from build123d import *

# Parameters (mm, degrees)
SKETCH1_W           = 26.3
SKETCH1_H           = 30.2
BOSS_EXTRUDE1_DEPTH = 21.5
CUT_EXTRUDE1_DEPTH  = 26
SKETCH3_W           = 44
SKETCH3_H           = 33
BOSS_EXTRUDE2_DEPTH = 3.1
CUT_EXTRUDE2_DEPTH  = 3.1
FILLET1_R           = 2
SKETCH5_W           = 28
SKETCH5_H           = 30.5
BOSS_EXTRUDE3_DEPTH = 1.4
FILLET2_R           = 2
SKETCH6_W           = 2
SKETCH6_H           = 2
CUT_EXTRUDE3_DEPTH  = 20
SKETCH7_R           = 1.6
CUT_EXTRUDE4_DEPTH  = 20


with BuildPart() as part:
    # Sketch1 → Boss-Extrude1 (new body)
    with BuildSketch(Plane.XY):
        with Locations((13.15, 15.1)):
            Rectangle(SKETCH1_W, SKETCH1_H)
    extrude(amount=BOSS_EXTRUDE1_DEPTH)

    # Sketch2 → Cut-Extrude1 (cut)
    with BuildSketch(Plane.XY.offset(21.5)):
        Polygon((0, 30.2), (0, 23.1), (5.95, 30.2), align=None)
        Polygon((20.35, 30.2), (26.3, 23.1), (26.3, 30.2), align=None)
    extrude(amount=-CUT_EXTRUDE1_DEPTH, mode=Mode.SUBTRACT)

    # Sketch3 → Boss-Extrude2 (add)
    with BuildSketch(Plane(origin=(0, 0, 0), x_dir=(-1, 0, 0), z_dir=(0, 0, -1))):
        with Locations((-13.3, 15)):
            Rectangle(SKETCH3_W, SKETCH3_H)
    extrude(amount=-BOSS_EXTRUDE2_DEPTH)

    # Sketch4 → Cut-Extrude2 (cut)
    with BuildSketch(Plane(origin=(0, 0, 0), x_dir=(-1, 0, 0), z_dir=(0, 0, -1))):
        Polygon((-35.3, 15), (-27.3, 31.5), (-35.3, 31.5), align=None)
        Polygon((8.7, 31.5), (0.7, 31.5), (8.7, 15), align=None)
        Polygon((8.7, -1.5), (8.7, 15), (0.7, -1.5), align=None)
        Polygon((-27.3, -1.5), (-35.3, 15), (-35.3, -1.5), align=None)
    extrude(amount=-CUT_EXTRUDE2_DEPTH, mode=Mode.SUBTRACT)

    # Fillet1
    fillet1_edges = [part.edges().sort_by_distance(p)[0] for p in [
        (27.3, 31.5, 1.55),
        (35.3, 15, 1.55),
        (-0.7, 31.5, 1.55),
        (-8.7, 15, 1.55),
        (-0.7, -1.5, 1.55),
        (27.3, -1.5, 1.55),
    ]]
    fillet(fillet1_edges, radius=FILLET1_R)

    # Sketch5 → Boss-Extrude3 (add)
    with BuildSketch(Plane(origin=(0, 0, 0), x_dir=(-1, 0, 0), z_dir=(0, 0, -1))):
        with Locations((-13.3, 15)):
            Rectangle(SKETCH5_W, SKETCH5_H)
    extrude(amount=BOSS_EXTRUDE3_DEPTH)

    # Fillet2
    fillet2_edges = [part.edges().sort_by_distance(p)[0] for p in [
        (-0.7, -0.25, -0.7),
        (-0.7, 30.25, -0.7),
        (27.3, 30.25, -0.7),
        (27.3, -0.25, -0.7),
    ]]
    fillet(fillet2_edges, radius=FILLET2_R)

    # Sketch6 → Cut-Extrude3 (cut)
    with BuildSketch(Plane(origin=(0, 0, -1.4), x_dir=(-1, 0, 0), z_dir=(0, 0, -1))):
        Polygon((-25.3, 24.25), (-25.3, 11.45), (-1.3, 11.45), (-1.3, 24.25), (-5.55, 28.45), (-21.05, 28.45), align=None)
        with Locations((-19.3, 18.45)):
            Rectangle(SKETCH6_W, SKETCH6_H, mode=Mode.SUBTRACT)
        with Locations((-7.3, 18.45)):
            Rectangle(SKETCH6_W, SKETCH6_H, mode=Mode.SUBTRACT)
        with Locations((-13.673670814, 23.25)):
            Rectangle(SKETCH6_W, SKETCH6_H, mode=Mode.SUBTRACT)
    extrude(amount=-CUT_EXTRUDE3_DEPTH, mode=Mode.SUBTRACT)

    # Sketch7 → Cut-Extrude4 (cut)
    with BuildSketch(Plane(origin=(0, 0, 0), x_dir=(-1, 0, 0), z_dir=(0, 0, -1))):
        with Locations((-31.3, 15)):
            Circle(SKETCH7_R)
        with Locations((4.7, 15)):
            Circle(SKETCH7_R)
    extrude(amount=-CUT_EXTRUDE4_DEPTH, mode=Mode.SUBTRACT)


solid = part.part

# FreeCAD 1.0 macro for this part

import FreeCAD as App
import Part
import Sketcher

V = App.Vector
Q = App.Units.Quantity


def edges_at(feature, points):
    """Names of the edges that pass closest to the given points."""
    edges = feature.Shape.Edges
    near = lambda p: min(range(len(edges)), key=lambda i: edges[i].distToShape(Part.Vertex(*p))[0])
    return sorted({f"Edge{near(p) + 1}" for p in points})

doc = App.newDocument("Part")
body = doc.addObject("PartDesign::Body", "Body")

sketch1 = body.newObject("Sketcher::SketchObject", "Sketch")
sketch1.AttachmentSupport = (doc.getObject("XY_Plane"), [""])
sketch1.MapMode = "FlatFace"
sketch1.addGeometry([
    Part.LineSegment(V(0, 30, 0), V(0, 0, 0)),
    Part.LineSegment(V(0, 0, 0), V(26, 0, 0)),
    Part.LineSegment(V(26, 0, 0), V(26, 30, 0)),
    Part.LineSegment(V(26, 30, 0), V(0, 30, 0)),
], False)
sketch1.addConstraint([
    Sketcher.Constraint("Coincident", 0, 2, 1, 1),
    Sketcher.Constraint("Coincident", 1, 2, 2, 1),
    Sketcher.Constraint("Coincident", 2, 2, 3, 1),
    Sketcher.Constraint("Coincident", 3, 2, 0, 1),
    Sketcher.Constraint("Vertical", 0),
    Sketcher.Constraint("Horizontal", 1),
    Sketcher.Constraint("Vertical", 2),
    Sketcher.Constraint("Horizontal", 3),
    Sketcher.Constraint("Coincident", 0, 2, -1, 1),
    Sketcher.Constraint("DistanceX", 1, 1, 1, 2, Q("26.3 mm")),
    Sketcher.Constraint("DistanceY", 0, 2, 0, 1, Q("30.2 mm")),
])
pad1 = body.newObject("PartDesign::Pad", "Pad")
pad1.Profile = sketch1
pad1.Length = 21.5

sketch2 = body.newObject("Sketcher::SketchObject", "Sketch001")
sketch2.AttachmentSupport = (doc.getObject("XY_Plane"), [""])
sketch2.MapMode = "FlatFace"
sketch2.AttachmentOffset = App.Placement(V(0, 0, 21.5), App.Rotation())
sketch2.addGeometry([
    Part.LineSegment(V(0, 30, 0), V(0, 23, 0)),
    Part.LineSegment(V(0, 23, 0), V(6, 30, 0)),
    Part.LineSegment(V(6, 30, 0), V(0, 30, 0)),
    Part.LineSegment(V(20, 30, 0), V(26, 23, 0)),
    Part.LineSegment(V(26, 23, 0), V(26, 30, 0)),
    Part.LineSegment(V(26, 30, 0), V(20, 30, 0)),
], False)
sketch2.addConstraint([
    Sketcher.Constraint("Coincident", 0, 2, 1, 1),
    Sketcher.Constraint("Coincident", 1, 2, 2, 1),
    Sketcher.Constraint("Coincident", 2, 2, 0, 1),
    Sketcher.Constraint("Coincident", 3, 2, 4, 1),
    Sketcher.Constraint("Coincident", 4, 2, 5, 1),
    Sketcher.Constraint("Coincident", 5, 2, 3, 1),
    Sketcher.Constraint("Vertical", 0),
    Sketcher.Constraint("Horizontal", 2),
    Sketcher.Constraint("Vertical", 4),
    Sketcher.Constraint("Horizontal", 5),
    Sketcher.Constraint("PointOnObject", 0, 2, -2),
    Sketcher.Constraint("Horizontal", 0, 2, 3, 2),
    Sketcher.Constraint("Horizontal", 2, 2, 4, 2),
    Sketcher.Constraint("Equal", 2, 5),
    Sketcher.Constraint("DistanceY", 0, 2, 0, 1, Q("7.1 mm")),
    Sketcher.Constraint("DistanceX", 2, 2, 2, 1, Q("5.95 mm")),
    Sketcher.Constraint("DistanceY", -1, 1, 0, 2, Q("23.1 mm")),
    Sketcher.Constraint("DistanceX", -1, 1, 3, 2, Q("26.3 mm")),
])
pocket1 = body.newObject("PartDesign::Pocket", "Pocket")
pocket1.Profile = sketch2
pocket1.Length = 26

sketch3 = body.newObject("Sketcher::SketchObject", "Sketch002")
sketch3.AttachmentSupport = (doc.getObject("XY_Plane"), [""])
sketch3.MapMode = "FlatFace"
sketch3.addGeometry([
    Part.LineSegment(V(35, 32, 0), V(35, -2, 0)),
    Part.LineSegment(V(35, -2, 0), V(-9, -2, 0)),
    Part.LineSegment(V(-9, -2, 0), V(-9, 32, 0)),
    Part.LineSegment(V(-9, 32, 0), V(35, 32, 0)),
], False)
sketch3.addConstraint([
    Sketcher.Constraint("Coincident", 0, 2, 1, 1),
    Sketcher.Constraint("Coincident", 1, 2, 2, 1),
    Sketcher.Constraint("Coincident", 2, 2, 3, 1),
    Sketcher.Constraint("Coincident", 3, 2, 0, 1),
    Sketcher.Constraint("Vertical", 0),
    Sketcher.Constraint("Horizontal", 1),
    Sketcher.Constraint("Vertical", 2),
    Sketcher.Constraint("Horizontal", 3),
    Sketcher.Constraint("DistanceX", 1, 2, 1, 1, Q("44 mm")),
    Sketcher.Constraint("DistanceY", 0, 2, 0, 1, Q("33 mm")),
    Sketcher.Constraint("DistanceX", -1, 1, 0, 2, Q("35.3 mm")),
    Sketcher.Constraint("DistanceY", 0, 2, -1, 1, Q("1.5 mm")),
])
pad2 = body.newObject("PartDesign::Pad", "Pad001")
pad2.Profile = sketch3
pad2.Length = 3.1

sketch4 = body.newObject("Sketcher::SketchObject", "Sketch003")
sketch4.AttachmentSupport = (doc.getObject("XY_Plane"), [""])
sketch4.MapMode = "FlatFace"
sketch4.addGeometry([
    Part.LineSegment(V(35, 15, 0), V(27, 32, 0)),
    Part.LineSegment(V(27, 32, 0), V(35, 32, 0)),
    Part.LineSegment(V(35, 32, 0), V(35, 15, 0)),
    Part.LineSegment(V(-9, 32, 0), V(-1, 32, 0)),
    Part.LineSegment(V(-1, 32, 0), V(-9, 15, 0)),
    Part.LineSegment(V(-9, 15, 0), V(-9, 32, 0)),
    Part.LineSegment(V(-9, -2, 0), V(-9, 15, 0)),
    Part.LineSegment(V(-9, 15, 0), V(-1, -2, 0)),
    Part.LineSegment(V(-1, -2, 0), V(-9, -2, 0)),
    Part.LineSegment(V(27, -2, 0), V(35, 15, 0)),
    Part.LineSegment(V(35, 15, 0), V(35, -2, 0)),
    Part.LineSegment(V(35, -2, 0), V(27, -2, 0)),
], False)
sketch4.addConstraint([
    Sketcher.Constraint("Coincident", 0, 2, 1, 1),
    Sketcher.Constraint("Coincident", 1, 2, 2, 1),
    Sketcher.Constraint("Coincident", 2, 2, 0, 1),
    Sketcher.Constraint("Coincident", 3, 2, 4, 1),
    Sketcher.Constraint("Coincident", 4, 2, 5, 1),
    Sketcher.Constraint("Coincident", 5, 2, 3, 1),
    Sketcher.Constraint("Coincident", 6, 2, 7, 1),
    Sketcher.Constraint("Coincident", 7, 2, 8, 1),
    Sketcher.Constraint("Coincident", 8, 2, 6, 1),
    Sketcher.Constraint("Coincident", 9, 2, 10, 1),
    Sketcher.Constraint("Coincident", 10, 2, 11, 1),
    Sketcher.Constraint("Coincident", 11, 2, 9, 1),
    Sketcher.Constraint("Horizontal", 1),
    Sketcher.Constraint("Vertical", 2),
    Sketcher.Constraint("Horizontal", 3),
    Sketcher.Constraint("Vertical", 5),
    Sketcher.Constraint("Vertical", 6),
    Sketcher.Constraint("Horizontal", 8),
    Sketcher.Constraint("Vertical", 10),
    Sketcher.Constraint("Horizontal", 11),
    Sketcher.Constraint("Coincident", 6, 2, 4, 2),
    Sketcher.Constraint("Coincident", 9, 2, 2, 2),
    Sketcher.Constraint("Parallel", 0, 7),
    Sketcher.Constraint("Parallel", 4, 9),
    Sketcher.Constraint("Horizontal", 1, 2, 3, 2),
    Sketcher.Constraint("Horizontal", 2, 2, 4, 2),
    Sketcher.Constraint("Horizontal", 8, 2, 10, 2),
    Sketcher.Constraint("Vertical", 3, 2, 7, 2),
    Sketcher.Constraint("Vertical", 0, 2, 11, 2),
    Sketcher.Constraint("DistanceX", 1, 1, 1, 2, Q("8 mm")),
    Sketcher.Constraint("DistanceY", 2, 2, 2, 1, Q("16.5 mm")),
    Sketcher.Constraint("DistanceY", -1, 1, 2, 2, Q("15 mm")),
    Sketcher.Constraint("DistanceX", 3, 2, 0, 2, Q("28 mm")),
    Sketcher.Constraint("DistanceX", -1, 1, 0, 2, Q("27.3 mm")),
])
pocket2 = body.newObject("PartDesign::Pocket", "Pocket001")
pocket2.Profile = sketch4
pocket2.Length = 3.1
pocket2.Reversed = True
doc.recompute()

fillet = body.newObject("PartDesign::Fillet", "Fillet")
fillet.Base = (pocket2, edges_at(pocket2, [
    (27.3, 31.5, 1.55),
    (35.3, 15, 1.55),
    (-0.7, 31.5, 1.55),
    (-8.7, 15, 1.55),
    (-0.7, -1.5, 1.55),
    (27.3, -1.5, 1.55),
]))
fillet.Radius = 2

sketch5 = body.newObject("Sketcher::SketchObject", "Sketch004")
sketch5.AttachmentSupport = (doc.getObject("XY_Plane"), [""])
sketch5.MapMode = "FlatFace"
sketch5.addGeometry([
    Part.LineSegment(V(27, 30, 0), V(27, 0, 0)),
    Part.LineSegment(V(27, 0, 0), V(-1, 0, 0)),
    Part.LineSegment(V(-1, 0, 0), V(-1, 30, 0)),
    Part.LineSegment(V(-1, 30, 0), V(27, 30, 0)),
], False)
sketch5.addConstraint([
    Sketcher.Constraint("Coincident", 0, 2, 1, 1),
    Sketcher.Constraint("Coincident", 1, 2, 2, 1),
    Sketcher.Constraint("Coincident", 2, 2, 3, 1),
    Sketcher.Constraint("Coincident", 3, 2, 0, 1),
    Sketcher.Constraint("Vertical", 0),
    Sketcher.Constraint("Horizontal", 1),
    Sketcher.Constraint("Vertical", 2),
    Sketcher.Constraint("Horizontal", 3),
    Sketcher.Constraint("DistanceX", 1, 2, 1, 1, Q("28 mm")),
    Sketcher.Constraint("DistanceY", 0, 2, 0, 1, Q("30.5 mm")),
    Sketcher.Constraint("DistanceX", -1, 1, 0, 2, Q("27.3 mm")),
    Sketcher.Constraint("DistanceY", 0, 2, -1, 1, Q("0.25 mm")),
])
pad3 = body.newObject("PartDesign::Pad", "Pad002")
pad3.Profile = sketch5
pad3.Length = 1.4
pad3.Reversed = True
doc.recompute()

fillet2 = body.newObject("PartDesign::Fillet", "Fillet001")
fillet2.Base = (pad3, edges_at(pad3, [
    (-0.7, -0.25, -0.7),
    (-0.7, 30.25, -0.7),
    (27.3, 30.25, -0.7),
    (27.3, -0.25, -0.7),
]))
fillet2.Radius = 2

sketch6 = body.newObject("Sketcher::SketchObject", "Sketch005")
sketch6.AttachmentSupport = (doc.getObject("XY_Plane"), [""])
sketch6.MapMode = "FlatFace"
sketch6.AttachmentOffset = App.Placement(V(0, 0, -1.4), App.Rotation())
sketch6.addGeometry([
    Part.LineSegment(V(25.3, 24.2, 0), V(25.3, 11.4, 0)),
    Part.LineSegment(V(25.3, 11.4, 0), V(1.3, 11.4, 0)),
    Part.LineSegment(V(1.3, 11.4, 0), V(1.3, 24.2, 0)),
    Part.LineSegment(V(1.3, 24.2, 0), V(5.5, 28.4, 0)),
    Part.LineSegment(V(5.5, 28.4, 0), V(21.1, 28.4, 0)),
    Part.LineSegment(V(21.1, 28.4, 0), V(25.3, 24.2, 0)),
    Part.LineSegment(V(18.3, 17.4, 0), V(20.3, 17.4, 0)),
    Part.LineSegment(V(20.3, 17.4, 0), V(20.3, 19.4, 0)),
    Part.LineSegment(V(20.3, 19.4, 0), V(18.3, 19.4, 0)),
    Part.LineSegment(V(18.3, 19.4, 0), V(18.3, 17.4, 0)),
    Part.LineSegment(V(6.3, 17.4, 0), V(8.3, 17.4, 0)),
    Part.LineSegment(V(8.3, 17.4, 0), V(8.3, 19.4, 0)),
    Part.LineSegment(V(8.3, 19.4, 0), V(6.3, 19.4, 0)),
    Part.LineSegment(V(6.3, 19.4, 0), V(6.3, 17.4, 0)),
    Part.LineSegment(V(12.7, 22.2, 0), V(14.7, 22.2, 0)),
    Part.LineSegment(V(14.7, 22.2, 0), V(14.7, 24.2, 0)),
    Part.LineSegment(V(14.7, 24.2, 0), V(12.7, 24.2, 0)),
    Part.LineSegment(V(12.7, 24.2, 0), V(12.7, 22.2, 0)),
], False)
sketch6.addConstraint([
    Sketcher.Constraint("Coincident", 0, 2, 1, 1),
    Sketcher.Constraint("Coincident", 1, 2, 2, 1),
    Sketcher.Constraint("Coincident", 2, 2, 3, 1),
    Sketcher.Constraint("Coincident", 3, 2, 4, 1),
    Sketcher.Constraint("Coincident", 4, 2, 5, 1),
    Sketcher.Constraint("Coincident", 5, 2, 0, 1),
    Sketcher.Constraint("Coincident", 6, 2, 7, 1),
    Sketcher.Constraint("Coincident", 7, 2, 8, 1),
    Sketcher.Constraint("Coincident", 8, 2, 9, 1),
    Sketcher.Constraint("Coincident", 9, 2, 6, 1),
    Sketcher.Constraint("Coincident", 10, 2, 11, 1),
    Sketcher.Constraint("Coincident", 11, 2, 12, 1),
    Sketcher.Constraint("Coincident", 12, 2, 13, 1),
    Sketcher.Constraint("Coincident", 13, 2, 10, 1),
    Sketcher.Constraint("Coincident", 14, 2, 15, 1),
    Sketcher.Constraint("Coincident", 15, 2, 16, 1),
    Sketcher.Constraint("Coincident", 16, 2, 17, 1),
    Sketcher.Constraint("Coincident", 17, 2, 14, 1),
    Sketcher.Constraint("Vertical", 0),
    Sketcher.Constraint("Horizontal", 1),
    Sketcher.Constraint("Vertical", 2),
    Sketcher.Constraint("Horizontal", 4),
    Sketcher.Constraint("Horizontal", 6),
    Sketcher.Constraint("Vertical", 7),
    Sketcher.Constraint("Horizontal", 8),
    Sketcher.Constraint("Vertical", 9),
    Sketcher.Constraint("Horizontal", 10),
    Sketcher.Constraint("Vertical", 11),
    Sketcher.Constraint("Horizontal", 12),
    Sketcher.Constraint("Vertical", 13),
    Sketcher.Constraint("Horizontal", 14),
    Sketcher.Constraint("Vertical", 15),
    Sketcher.Constraint("Horizontal", 16),
    Sketcher.Constraint("Vertical", 17),
    Sketcher.Constraint("Horizontal", 2, 2, 5, 2),
    Sketcher.Constraint("Horizontal", 9, 2, 10, 2),
    Sketcher.Constraint("Horizontal", 8, 2, 11, 2),
    Sketcher.Constraint("Horizontal", 5, 2, 15, 2),
    Sketcher.Constraint("Equal", 8, 10),
    Sketcher.Constraint("Equal", 12, 14),
    Sketcher.Constraint("Equal", 16, 7),
    Sketcher.Constraint("Equal", 13, 15),
    Sketcher.Constraint("Equal", 3, 5),
    Sketcher.Constraint("DistanceX", 1, 2, 1, 1, Q("24 mm")),
    Sketcher.Constraint("DistanceX", 6, 1, 6, 2, Q("2 mm")),
    Sketcher.Constraint("DistanceX", 4, 1, 4, 2, Q("15.5 mm")),
    Sketcher.Constraint("DistanceY", 0, 2, 0, 1, Q("12.8 mm")),
    Sketcher.Constraint("DistanceY", 1, 2, 3, 2, Q("17 mm")),
    Sketcher.Constraint("DistanceX", 6, 2, 0, 2, Q("5 mm")),
    Sketcher.Constraint("DistanceY", 0, 2, 6, 2, Q("6 mm")),
    Sketcher.Constraint("DistanceX", 1, 2, 10, 2, Q("7 mm")),
    Sketcher.Constraint("DistanceX", -1, 1, 0, 2, Q("25.3 mm")),
    Sketcher.Constraint("DistanceY", -1, 1, 0, 2, Q("11.45 mm")),
    Sketcher.Constraint("DistanceX", -1, 1, 14, 2, Q("14.673671 mm")),
])
pocket3 = body.newObject("PartDesign::Pocket", "Pocket002")
pocket3.Profile = sketch6
pocket3.Length = 20
pocket3.Reversed = True

sketch7 = body.newObject("Sketcher::SketchObject", "Sketch006")
sketch7.AttachmentSupport = (doc.getObject("XY_Plane"), [""])
sketch7.MapMode = "FlatFace"
sketch7.addGeometry([
    Part.Circle(V(31.3, 15, 0), V(0, 0, 1), 1.6),
    Part.Circle(V(-4.7, 15, 0), V(0, 0, 1), 1.6),
], False)
sketch7.addConstraint([
    Sketcher.Constraint("Equal", 0, 1),
    Sketcher.Constraint("Horizontal", 0, 3, 1, 3),
    Sketcher.Constraint("Diameter", 0, Q("3.2 mm")),
    Sketcher.Constraint("DistanceY", -1, 1, 0, 3, Q("15 mm")),
    Sketcher.Constraint("DistanceX", 1, 3, 0, 3, Q("36 mm")),
    Sketcher.Constraint("DistanceX", -1, 1, 0, 3, Q("31.3 mm")),
])
pocket4 = body.newObject("PartDesign::Pocket", "Pocket003")
pocket4.Profile = sketch7
pocket4.Length = 20
pocket4.Reversed = True

doc.recompute()
